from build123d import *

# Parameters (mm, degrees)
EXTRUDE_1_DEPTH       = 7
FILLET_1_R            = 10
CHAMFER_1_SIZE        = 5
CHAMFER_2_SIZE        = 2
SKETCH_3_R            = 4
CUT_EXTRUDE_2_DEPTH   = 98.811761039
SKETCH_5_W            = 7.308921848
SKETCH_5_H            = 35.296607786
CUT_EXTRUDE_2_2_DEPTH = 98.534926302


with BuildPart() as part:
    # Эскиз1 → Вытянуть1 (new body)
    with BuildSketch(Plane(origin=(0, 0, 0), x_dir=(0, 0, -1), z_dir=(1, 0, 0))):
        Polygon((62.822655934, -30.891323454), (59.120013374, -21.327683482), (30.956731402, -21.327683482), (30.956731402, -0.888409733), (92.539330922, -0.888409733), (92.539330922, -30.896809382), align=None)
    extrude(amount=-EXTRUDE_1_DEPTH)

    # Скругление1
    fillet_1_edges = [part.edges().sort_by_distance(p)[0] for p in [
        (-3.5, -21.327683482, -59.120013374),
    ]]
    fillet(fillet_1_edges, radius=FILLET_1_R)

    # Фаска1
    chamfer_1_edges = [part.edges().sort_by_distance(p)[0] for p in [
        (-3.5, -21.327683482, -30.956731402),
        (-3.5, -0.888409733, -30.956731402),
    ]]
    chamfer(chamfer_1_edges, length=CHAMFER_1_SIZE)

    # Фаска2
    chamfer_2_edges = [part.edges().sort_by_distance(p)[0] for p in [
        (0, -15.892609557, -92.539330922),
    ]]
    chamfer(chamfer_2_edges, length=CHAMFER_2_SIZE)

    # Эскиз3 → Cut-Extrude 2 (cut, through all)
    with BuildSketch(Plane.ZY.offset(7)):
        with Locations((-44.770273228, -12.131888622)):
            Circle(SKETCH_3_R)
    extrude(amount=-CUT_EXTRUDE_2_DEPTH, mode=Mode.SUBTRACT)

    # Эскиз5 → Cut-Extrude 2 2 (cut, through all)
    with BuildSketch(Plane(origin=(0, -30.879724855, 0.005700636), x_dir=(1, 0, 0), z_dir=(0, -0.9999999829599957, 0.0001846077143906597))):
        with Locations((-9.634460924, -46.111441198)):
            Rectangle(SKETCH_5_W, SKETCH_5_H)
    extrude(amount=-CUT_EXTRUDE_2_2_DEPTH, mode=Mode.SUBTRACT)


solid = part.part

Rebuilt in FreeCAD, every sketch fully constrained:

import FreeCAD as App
import Part
import Sketcher

V = App.Vector


def edges_at(feature, points):
    """Names of the edges that pass closest to the given points."""
    edges = feature.Shape.Edges
    near = lambda p: min(range(len(edges)), key=lambda i: edges[i].distToShape(Part.Vertex(*p))[0])
    return sorted({f"Edge{near(p) + 1}" for p in points})

doc = App.newDocument("Part")
body = doc.addObject("PartDesign::Body", "Body")

sketch1 = body.newObject("Sketcher::SketchObject", "Sketch")
sketch1.AttachmentSupport = (doc.getObject("YZ_Plane"), [""])
sketch1.MapMode = "FlatFace"
sketch1.addGeometry([
    Part.LineSegment(V(-21.327683, -59.120013, 0), V(-30.891323, -62.822656, 0)),
    Part.LineSegment(V(-30.891323, -62.822656, 0), V(-30.896809, -92.539331, 0)),
    Part.LineSegment(V(-30.896809, -92.539331, 0), V(-0.88841, -92.539331, 0)),
    Part.LineSegment(V(-0.88841, -92.539331, 0), V(-0.88841, -30.956731, 0)),
    Part.LineSegment(V(-0.88841, -30.956731, 0), V(-21.327683, -30.956731, 0)),
    Part.LineSegment(V(-21.327683, -30.956731, 0), V(-21.327683, -59.120013, 0)),
], False)
sketch1.addConstraint([
    Sketcher.Constraint("Coincident", 0, 2, 1, 1),
    Sketcher.Constraint("Coincident", 1, 2, 2, 1),
    Sketcher.Constraint("Coincident", 2, 2, 3, 1),
    Sketcher.Constraint("Coincident", 3, 2, 4, 1),
    Sketcher.Constraint("Coincident", 4, 2, 5, 1),
    Sketcher.Constraint("Coincident", 5, 2, 0, 1),
    Sketcher.Constraint("Horizontal", 2),
    Sketcher.Constraint("Vertical", 3),
    Sketcher.Constraint("Horizontal", 4),
    Sketcher.Constraint("Vertical", 5),
    Sketcher.Constraint("DistanceX", 2, 1, 2, 2, 30.0084),
    Sketcher.Constraint("DistanceY", 3, 1, 3, 2, 61.5826),
    Sketcher.Constraint("DistanceY", 5, 2, 5, 1, 28.163282),
    Sketcher.Constraint("DistanceX", 4, 2, 4, 1, 20.439274),
    Sketcher.Constraint("DistanceX", 1, 2, -1, 1, 30.896809),
    Sketcher.Constraint("DistanceY", 1, 2, -1, 1, 92.539331),
    Sketcher.Constraint("DistanceX", 0, 2, 4, 2, 9.56364),
    Sketcher.Constraint("Distance", 0, 10.255378),
])
pad1 = body.newObject("PartDesign::Pad", "Pad")
pad1.Profile = sketch1
pad1.Length = 7
pad1.Reversed = True
doc.recompute()

fillet = body.newObject("PartDesign::Fillet", "Fillet")
fillet.Base = (pad1, edges_at(pad1, [(-3.5, -21.328, -59.12)]))
fillet.Radius = 10
doc.recompute()

chamfer = body.newObject("PartDesign::Chamfer", "Chamfer")
chamfer.Base = (fillet, edges_at(fillet, [(-3.5, -21.328, -30.957), (-3.5, -0.888, -30.957)]))
chamfer.Size = 5
doc.recompute()

chamfer2 = body.newObject("PartDesign::Chamfer", "Chamfer001")
chamfer2.Base = (chamfer, edges_at(chamfer, [(0, -15.893, -92.539)]))
chamfer2.Size = 2

sketch2 = body.newObject("Sketcher::SketchObject", "Sketch001")
sketch2.AttachmentSupport = (doc.getObject("YZ_Plane"), [""])
sketch2.MapMode = "FlatFace"
sketch2.AttachmentOffset = App.Placement(V(0, 0, -7), App.Rotation())
sketch2.addGeometry(Part.Circle(V(-12.131889, -44.770273, 0), V(0, 0, 1), 4), False)
sketch2.addConstraint([
    Sketcher.Constraint("Diameter", 0, 8.0),
    Sketcher.Constraint("DistanceX", 0, 3, -1, 1, 12.131889),
    Sketcher.Constraint("DistanceY", 0, 3, -1, 1, 44.770273),
])
pocket1 = body.newObject("PartDesign::Pocket", "Pocket")
pocket1.Profile = sketch2
pocket1.Type = "ThroughAll"
pocket1.Reversed = True

sketch3 = body.newObject("Sketcher::SketchObject", "Sketch002")
sketch3.Placement = App.Placement(V(0, -30.879725, 0.005701), App.Rotation(V(1, 0, 0), V(0, 0.000184608, 0.999999983), V(0, -0.999999983, 0.000184608), "ZXY"))
sketch3.addGeometry([
    Part.LineSegment(V(-13.288922, -28.463137, 0), V(-13.288922, -63.759745, 0)),
    Part.LineSegment(V(-13.288922, -63.759745, 0), V(-5.98, -63.759745, 0)),
    Part.LineSegment(V(-5.98, -63.759745, 0), V(-5.98, -28.463137, 0)),
    Part.LineSegment(V(-5.98, -28.463137, 0), V(-13.288922, -28.463137, 0)),
], False)
sketch3.addConstraint([
    Sketcher.Constraint("Coincident", 0, 2, 1, 1),
    Sketcher.Constraint("Coincident", 1, 2, 2, 1),
    Sketcher.Constraint("Coincident", 2, 2, 3, 1),
    Sketcher.Constraint("Coincident", 3, 2, 0, 1),
    Sketcher.Constraint("Vertical", 0),
    Sketcher.Constraint("Horizontal", 1),
    Sketcher.Constraint("Vertical", 2),
    Sketcher.Constraint("Horizontal", 3),
    Sketcher.Constraint("DistanceX", 1, 2, -1, 1, 5.98),
    Sketcher.Constraint("DistanceX", 1, 1, 1, 2, 7.308922),
    Sketcher.Constraint("DistanceY", 0, 2, 0, 1, 35.296608),
    Sketcher.Constraint("DistanceY", 0, 2, -1, 1, 63.759745),
])
pocket2 = body.newObject("PartDesign::Pocket", "Pocket001")
pocket2.Profile = sketch3
pocket2.Type = "ThroughAll"

doc.recompute()
